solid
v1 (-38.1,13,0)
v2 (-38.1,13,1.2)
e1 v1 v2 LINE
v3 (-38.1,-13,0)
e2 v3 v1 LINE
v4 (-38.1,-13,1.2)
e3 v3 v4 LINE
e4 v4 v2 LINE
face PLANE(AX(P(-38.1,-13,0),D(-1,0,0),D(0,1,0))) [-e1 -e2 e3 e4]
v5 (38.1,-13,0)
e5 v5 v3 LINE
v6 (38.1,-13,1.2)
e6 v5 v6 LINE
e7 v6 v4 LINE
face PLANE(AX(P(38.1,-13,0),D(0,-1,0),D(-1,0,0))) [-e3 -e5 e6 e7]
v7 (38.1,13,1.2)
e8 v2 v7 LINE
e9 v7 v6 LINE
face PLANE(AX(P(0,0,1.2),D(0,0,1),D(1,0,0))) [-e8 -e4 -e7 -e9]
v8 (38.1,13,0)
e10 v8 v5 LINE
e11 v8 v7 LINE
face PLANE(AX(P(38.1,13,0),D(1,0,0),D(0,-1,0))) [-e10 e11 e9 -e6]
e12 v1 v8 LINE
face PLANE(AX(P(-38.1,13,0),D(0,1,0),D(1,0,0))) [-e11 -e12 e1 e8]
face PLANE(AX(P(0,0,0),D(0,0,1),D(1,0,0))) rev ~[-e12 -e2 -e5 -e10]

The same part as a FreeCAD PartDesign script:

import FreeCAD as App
import Part
import Sketcher

V = App.Vector

doc = App.newDocument("Part")
params = doc.addObject("Spreadsheet::Sheet", "Params")
for row, (alias, value) in enumerate([
    ("sketch1_height", "26 mm"),
    ("sketch1_width", "76.2 mm"),
    ("pad1_length", "1.2 mm"),
], start=1):
    params.set(f"A{row}", alias)
    params.set(f"B{row}", "=" + value)
    params.setAlias(f"B{row}", alias)

body = doc.addObject("PartDesign::Body", "Body")

# Sketch on XY plane
sketch1 = doc.addObject("Sketcher::SketchObject", "Sketch")
body.addObject(sketch1)
sketch1.AttachmentSupport = (doc.XY_Plane, [""])
sketch1.MapMode = "FlatFace"
sketch1.addGeometry([
    Part.LineSegment(V(38, 13, 0), V(-38, 13, 0)),
    Part.LineSegment(V(-38, 13, 0), V(-38, -13, 0)),
    Part.LineSegment(V(-38, -13, 0), V(38, -13, 0)),
    Part.LineSegment(V(38, -13, 0), V(38, 13, 0)),
], False)
sketch1.addConstraint([
    Sketcher.Constraint("Coincident", 0, 2, 1, 1),
    Sketcher.Constraint("Coincident", 1, 2, 2, 1),
    Sketcher.Constraint("Coincident", 2, 2, 3, 1),
    Sketcher.Constraint("Coincident", 3, 2, 0, 1),
    Sketcher.Constraint("Horizontal", 0),
    Sketcher.Constraint("Vertical", 1),
    Sketcher.Constraint("Horizontal", 2),
    Sketcher.Constraint("Vertical", 3),
    Sketcher.Constraint("Symmetric", 0, 2, 2, 2, -1, 1),
    Sketcher.Constraint("DistanceY", 1, 2, 1, 1, 26.0),
    Sketcher.Constraint("DistanceX", 0, 2, 0, 1, 76.2),
])
sketch1.setExpression("Constraints[9]", "Params.sketch1_height")
sketch1.setExpression("Constraints[10]", "Params.sketch1_width")
pad1 = doc.addObject("PartDesign::Pad", "Pad")
body.addObject(pad1)
pad1.Profile = sketch1
pad1.setExpression("Length", "Params.pad1_length")

doc.recompute()
